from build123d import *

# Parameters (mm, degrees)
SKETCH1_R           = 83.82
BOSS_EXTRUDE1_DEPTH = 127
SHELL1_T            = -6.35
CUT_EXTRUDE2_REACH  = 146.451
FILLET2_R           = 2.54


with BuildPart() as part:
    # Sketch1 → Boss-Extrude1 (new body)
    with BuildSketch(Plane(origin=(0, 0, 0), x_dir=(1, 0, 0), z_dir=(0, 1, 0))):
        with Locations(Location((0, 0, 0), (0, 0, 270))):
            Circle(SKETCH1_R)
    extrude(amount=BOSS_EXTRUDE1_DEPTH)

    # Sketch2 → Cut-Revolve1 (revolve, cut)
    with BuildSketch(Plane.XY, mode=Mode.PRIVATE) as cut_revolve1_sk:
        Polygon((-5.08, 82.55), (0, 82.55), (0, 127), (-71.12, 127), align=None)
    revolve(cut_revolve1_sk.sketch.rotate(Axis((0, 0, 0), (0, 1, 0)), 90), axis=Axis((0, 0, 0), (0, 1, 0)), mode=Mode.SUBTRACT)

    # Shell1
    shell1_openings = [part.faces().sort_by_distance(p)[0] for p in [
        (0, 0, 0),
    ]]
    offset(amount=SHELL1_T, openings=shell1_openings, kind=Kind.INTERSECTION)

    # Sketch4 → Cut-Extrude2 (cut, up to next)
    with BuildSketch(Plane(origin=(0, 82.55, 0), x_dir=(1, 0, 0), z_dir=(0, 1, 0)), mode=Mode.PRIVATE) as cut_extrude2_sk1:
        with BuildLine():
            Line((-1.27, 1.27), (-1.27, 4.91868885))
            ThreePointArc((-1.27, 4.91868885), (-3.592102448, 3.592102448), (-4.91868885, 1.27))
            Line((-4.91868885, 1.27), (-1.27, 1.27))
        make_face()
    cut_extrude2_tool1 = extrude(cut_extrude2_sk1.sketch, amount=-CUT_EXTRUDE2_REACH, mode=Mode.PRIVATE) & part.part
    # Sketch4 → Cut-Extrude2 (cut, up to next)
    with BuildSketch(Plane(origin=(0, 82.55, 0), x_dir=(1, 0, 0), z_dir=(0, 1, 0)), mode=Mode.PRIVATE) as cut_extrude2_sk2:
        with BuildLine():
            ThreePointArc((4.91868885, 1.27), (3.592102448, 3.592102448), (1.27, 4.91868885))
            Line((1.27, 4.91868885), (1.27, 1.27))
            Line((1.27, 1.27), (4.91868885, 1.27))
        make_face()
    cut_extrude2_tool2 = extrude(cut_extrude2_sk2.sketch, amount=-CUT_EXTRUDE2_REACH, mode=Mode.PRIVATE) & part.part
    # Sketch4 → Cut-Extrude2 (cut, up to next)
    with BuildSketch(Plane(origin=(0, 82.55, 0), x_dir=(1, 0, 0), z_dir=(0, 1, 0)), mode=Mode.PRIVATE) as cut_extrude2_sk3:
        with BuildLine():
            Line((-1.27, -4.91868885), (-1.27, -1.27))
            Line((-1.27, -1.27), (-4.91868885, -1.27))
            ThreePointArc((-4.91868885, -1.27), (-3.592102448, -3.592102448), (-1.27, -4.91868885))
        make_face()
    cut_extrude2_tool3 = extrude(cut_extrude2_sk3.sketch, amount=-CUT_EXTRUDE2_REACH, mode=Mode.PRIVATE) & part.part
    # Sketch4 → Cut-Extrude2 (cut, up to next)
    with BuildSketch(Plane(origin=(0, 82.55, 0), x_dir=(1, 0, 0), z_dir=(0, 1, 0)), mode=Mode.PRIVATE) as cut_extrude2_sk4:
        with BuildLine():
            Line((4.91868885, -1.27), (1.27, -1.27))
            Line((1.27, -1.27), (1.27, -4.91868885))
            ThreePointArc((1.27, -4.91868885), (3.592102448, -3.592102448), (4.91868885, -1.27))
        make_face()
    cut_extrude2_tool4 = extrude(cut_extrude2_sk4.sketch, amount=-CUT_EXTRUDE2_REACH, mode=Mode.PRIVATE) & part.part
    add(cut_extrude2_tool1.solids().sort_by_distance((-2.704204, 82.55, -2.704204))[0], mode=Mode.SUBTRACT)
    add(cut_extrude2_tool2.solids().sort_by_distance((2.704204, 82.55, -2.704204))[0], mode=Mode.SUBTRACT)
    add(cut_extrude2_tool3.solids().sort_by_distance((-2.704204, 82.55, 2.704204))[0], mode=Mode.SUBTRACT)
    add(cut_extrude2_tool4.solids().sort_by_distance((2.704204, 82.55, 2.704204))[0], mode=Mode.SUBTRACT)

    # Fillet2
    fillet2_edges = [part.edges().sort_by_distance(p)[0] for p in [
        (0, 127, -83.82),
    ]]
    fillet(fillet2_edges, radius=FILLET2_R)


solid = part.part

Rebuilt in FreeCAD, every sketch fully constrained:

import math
import FreeCAD as App
import Part
import Sketcher
from FreeCAD import Vector
Q = App.Units.Quantity


def edges_at(feature, points):
    """Names of the edges that pass closest to the given points."""
    edges = feature.Shape.Edges
    near = lambda p: min(range(len(edges)), key=lambda i: edges[i].distToShape(Part.Vertex(*p))[0])
    return sorted({f"Edge{near(p) + 1}" for p in points})


def faces_at(feature, points):
    """Names of the faces that lie closest to the given points."""
    faces = feature.Shape.Faces
    near = lambda p: min(range(len(faces)), key=lambda i: faces[i].distToShape(Part.Vertex(*p))[0])
    return sorted({f"Face{near(p) + 1}" for p in points})

doc = App.newDocument("Part")
body = doc.addObject("PartDesign::Body", "Body")

# Sketch on XZ plane
sketch1 = doc.addObject("Sketcher::SketchObject", "Sketch")
body.addObject(sketch1)
sketch1.AttachmentSupport = (doc.XZ_Plane, [""])
sketch1.MapMode = "FlatFace"
sketch1.addGeometry(Part.Circle(Vector(0, 0, 0), Vector(0, 0, 1), 84), False)
sketch1.addConstraint([
    Sketcher.Constraint("Coincident", 0, 3, -1, 1),
    Sketcher.Constraint("Diameter", 0, Q("6.6 in")),
])
pad1 = doc.addObject("PartDesign::Pad", "Pad")
body.addObject(pad1)
pad1.Profile = sketch1
pad1.Length = Q("5 in")
pad1.Reversed = True

# Sketch on XY plane
sketch2 = doc.addObject("Sketcher::SketchObject", "Sketch001")
body.addObject(sketch2)
sketch2.AttachmentSupport = (doc.XY_Plane, [""])
sketch2.MapMode = "FlatFace"
sketch2.addGeometry([
    Part.LineSegment(Vector(-5, 83, 0), Vector(0, 83, 0)),
    Part.LineSegment(Vector(0, 83, 0), Vector(0, 127, 0)),
    Part.LineSegment(Vector(0, 127, 0), Vector(-71, 127, 0)),
    Part.LineSegment(Vector(-71, 127, 0), Vector(-5, 83, 0)),
], False)
sketch2.addConstraint([
    Sketcher.Constraint("Coincident", 0, 2, 1, 1),
    Sketcher.Constraint("Coincident", 1, 2, 2, 1),
    Sketcher.Constraint("Coincident", 2, 2, 3, 1),
    Sketcher.Constraint("Coincident", 3, 2, 0, 1),
    Sketcher.Constraint("Horizontal", 0),
    Sketcher.Constraint("Vertical", 1),
    Sketcher.Constraint("Horizontal", 2),
    Sketcher.Constraint("PointOnObject", 0, 2, -2),
    Sketcher.Constraint("DistanceX", 0, 1, 0, 2, Q("0.2 in")),
    Sketcher.Constraint("DistanceX", 2, 2, 2, 1, Q("2.8 in")),
    Sketcher.Constraint("DistanceY", -1, 1, 1, 2, Q("5 in")),
    Sketcher.Constraint("DistanceY", 1, 1, 1, 2, Q("1.75 in")),
])
groove = doc.addObject("PartDesign::Groove", "Groove")
body.addObject(groove)
groove.Profile = sketch2
groove.ReferenceAxis = (sketch2, ["V_Axis"])
groove.Angle = 360
doc.recompute()

thickness = doc.addObject("PartDesign::Thickness", "Thickness")
body.addObject(thickness)
thickness.Base = (groove, faces_at(groove, [(0, 0, 0)]))
thickness.Value = Q("0.25 in")
thickness.Reversed = True
thickness.Join = "Intersection"

# Sketch on XZ plane
sketch3 = doc.addObject("Sketcher::SketchObject", "Sketch002")
body.addObject(sketch3)
sketch3.AttachmentSupport = (doc.XZ_Plane, [""])
sketch3.MapMode = "FlatFace"
sketch3.AttachmentOffset = App.Placement(Vector(0, 0, -3.25 * 25.4), App.Rotation())
sketch3.addGeometry([
    Part.LineSegment(Vector(-1.3, -1.3, 0), Vector(-1.3, -4.9, 0)),
    Part.ArcOfCircle(Part.Circle(Vector(0, 0, 0), Vector(0, 0, 1), 5.1), math.radians(-166), math.radians(-104)),
    Part.LineSegment(Vector(-4.9, -1.3, 0), Vector(-1.3, -1.3, 0)),
], False)
sketch3.addConstraint([
    Sketcher.Constraint("Coincident", 0, 2, 1, 2),
    Sketcher.Constraint("Coincident", 1, 1, 2, 1),
    Sketcher.Constraint("Coincident", 2, 2, 0, 1),
    Sketcher.Constraint("Vertical", 0),
    Sketcher.Constraint("Horizontal", 2),
    Sketcher.Constraint("Coincident", 1, 3, -1, 1),
    Sketcher.Constraint("Equal", 2, 0),
    Sketcher.Constraint("Radius", 1, Q("0.2 in")),
    Sketcher.Constraint("DistanceX", 0, 2, -1, 1, Q("0.05 in")),
])
pocket1 = doc.addObject("PartDesign::Pocket", "Pocket")
body.addObject(pocket1)
pocket1.Profile = sketch3
pocket1.Type = "UpToFirst"
pocket1.Reversed = True

# Sketch on XZ plane
sketch4 = doc.addObject("Sketcher::SketchObject", "Sketch003")
body.addObject(sketch4)
sketch4.AttachmentSupport = (doc.XZ_Plane, [""])
sketch4.MapMode = "FlatFace"
sketch4.AttachmentOffset = App.Placement(Vector(0, 0, -3.25 * 25.4), App.Rotation())
sketch4.addGeometry([
    Part.ArcOfCircle(Part.Circle(Vector(0, 0, 0), Vector(0, 0, 1), 5.1), math.radians(-76), math.radians(-14)),
    Part.LineSegment(Vector(1.3, -4.9, 0), Vector(1.3, -1.3, 0)),
    Part.LineSegment(Vector(1.3, -1.3, 0), Vector(4.9, -1.3, 0)),
], False)
sketch4.addConstraint([
    Sketcher.Constraint("Coincident", 0, 1, 1, 1),
    Sketcher.Constraint("Coincident", 1, 2, 2, 1),
    Sketcher.Constraint("Coincident", 2, 2, 0, 2),
    Sketcher.Constraint("Vertical", 1),
    Sketcher.Constraint("Horizontal", 2),
    Sketcher.Constraint("Coincident", 0, 3, -1, 1),
    Sketcher.Constraint("Equal", 2, 1),
    Sketcher.Constraint("Radius", 0, Q("0.2 in")),
    Sketcher.Constraint("DistanceX", -1, 1, 0, 1, Q("0.05 in")),
])
pocket2 = doc.addObject("PartDesign::Pocket", "Pocket001")
body.addObject(pocket2)
pocket2.Profile = sketch4
pocket2.Type = "UpToFirst"
pocket2.Reversed = True

# Sketch on XZ plane
sketch5 = doc.addObject("Sketcher::SketchObject", "Sketch004")
body.addObject(sketch5)
sketch5.AttachmentSupport = (doc.XZ_Plane, [""])
sketch5.MapMode = "FlatFace"
sketch5.AttachmentOffset = App.Placement(Vector(0, 0, -3.25 * 25.4), App.Rotation())
sketch5.addGeometry([
    Part.LineSegment(Vector(-1.3, 4.9, 0), Vector(-1.3, 1.3, 0)),
    Part.LineSegment(Vector(-1.3, 1.3, 0), Vector(-4.9, 1.3, 0)),
    Part.ArcOfCircle(Part.Circle(Vector(0, 0, 0), Vector(0, 0, 1), 5.1), math.radians(104), math.radians(166)),
], False)
sketch5.addConstraint([
    Sketcher.Constraint("Coincident", 0, 2, 1, 1),
    Sketcher.Constraint("Coincident", 1, 2, 2, 2),
    Sketcher.Constraint("Coincident", 2, 1, 0, 1),
    Sketcher.Constraint("Vertical", 0),
    Sketcher.Constraint("Horizontal", 1),
    Sketcher.Constraint("Coincident", 2, 3, -1, 1),
    Sketcher.Constraint("Equal", 1, 0),
    Sketcher.Constraint("Radius", 2, Q("0.2 in")),
    Sketcher.Constraint("DistanceX", 0, 2, -1, 1, Q("0.05 in")),
])
pocket3 = doc.addObject("PartDesign::Pocket", "Pocket002")
body.addObject(pocket3)
pocket3.Profile = sketch5
pocket3.Type = "UpToFirst"
pocket3.Reversed = True

# Sketch on XZ plane
sketch6 = doc.addObject("Sketcher::SketchObject", "Sketch005")
body.addObject(sketch6)
sketch6.AttachmentSupport = (doc.XZ_Plane, [""])
sketch6.MapMode = "FlatFace"
sketch6.AttachmentOffset = App.Placement(Vector(0, 0, -3.25 * 25.4), App.Rotation())
sketch6.addGeometry([
    Part.LineSegment(Vector(4.9, 1.3, 0), Vector(1.3, 1.3, 0)),
    Part.LineSegment(Vector(1.3, 1.3, 0), Vector(1.3, 4.9, 0)),
    Part.ArcOfCircle(Part.Circle(Vector(0, 0, 0), Vector(0, 0, 1), 5.1), math.radians(14), math.radians(76)),
], False)
sketch6.addConstraint([
    Sketcher.Constraint("Coincident", 0, 2, 1, 1),
    Sketcher.Constraint("Coincident", 1, 2, 2, 2),
    Sketcher.Constraint("Coincident", 2, 1, 0, 1),
    Sketcher.Constraint("Horizontal", 0),
    Sketcher.Constraint("Vertical", 1),
    Sketcher.Constraint("Coincident", 2, 3, -1, 1),
    Sketcher.Constraint("Equal", 0, 1),
    Sketcher.Constraint("Radius", 2, Q("0.2 in")),
    Sketcher.Constraint("DistanceX", -1, 1, 0, 2, Q("0.05 in")),
])
pocket4 = doc.addObject("PartDesign::Pocket", "Pocket003")
body.addObject(pocket4)
pocket4.Profile = sketch6
pocket4.Type = "UpToFirst"
pocket4.Reversed = True
doc.recompute()

fillet = doc.addObject("PartDesign::Fillet", "Fillet")
body.addObject(fillet)
fillet.Base = (pocket4, edges_at(pocket4, [(0, 127, -83.82)]))
fillet.Radius = Q("0.1 in")

doc.recompute()
